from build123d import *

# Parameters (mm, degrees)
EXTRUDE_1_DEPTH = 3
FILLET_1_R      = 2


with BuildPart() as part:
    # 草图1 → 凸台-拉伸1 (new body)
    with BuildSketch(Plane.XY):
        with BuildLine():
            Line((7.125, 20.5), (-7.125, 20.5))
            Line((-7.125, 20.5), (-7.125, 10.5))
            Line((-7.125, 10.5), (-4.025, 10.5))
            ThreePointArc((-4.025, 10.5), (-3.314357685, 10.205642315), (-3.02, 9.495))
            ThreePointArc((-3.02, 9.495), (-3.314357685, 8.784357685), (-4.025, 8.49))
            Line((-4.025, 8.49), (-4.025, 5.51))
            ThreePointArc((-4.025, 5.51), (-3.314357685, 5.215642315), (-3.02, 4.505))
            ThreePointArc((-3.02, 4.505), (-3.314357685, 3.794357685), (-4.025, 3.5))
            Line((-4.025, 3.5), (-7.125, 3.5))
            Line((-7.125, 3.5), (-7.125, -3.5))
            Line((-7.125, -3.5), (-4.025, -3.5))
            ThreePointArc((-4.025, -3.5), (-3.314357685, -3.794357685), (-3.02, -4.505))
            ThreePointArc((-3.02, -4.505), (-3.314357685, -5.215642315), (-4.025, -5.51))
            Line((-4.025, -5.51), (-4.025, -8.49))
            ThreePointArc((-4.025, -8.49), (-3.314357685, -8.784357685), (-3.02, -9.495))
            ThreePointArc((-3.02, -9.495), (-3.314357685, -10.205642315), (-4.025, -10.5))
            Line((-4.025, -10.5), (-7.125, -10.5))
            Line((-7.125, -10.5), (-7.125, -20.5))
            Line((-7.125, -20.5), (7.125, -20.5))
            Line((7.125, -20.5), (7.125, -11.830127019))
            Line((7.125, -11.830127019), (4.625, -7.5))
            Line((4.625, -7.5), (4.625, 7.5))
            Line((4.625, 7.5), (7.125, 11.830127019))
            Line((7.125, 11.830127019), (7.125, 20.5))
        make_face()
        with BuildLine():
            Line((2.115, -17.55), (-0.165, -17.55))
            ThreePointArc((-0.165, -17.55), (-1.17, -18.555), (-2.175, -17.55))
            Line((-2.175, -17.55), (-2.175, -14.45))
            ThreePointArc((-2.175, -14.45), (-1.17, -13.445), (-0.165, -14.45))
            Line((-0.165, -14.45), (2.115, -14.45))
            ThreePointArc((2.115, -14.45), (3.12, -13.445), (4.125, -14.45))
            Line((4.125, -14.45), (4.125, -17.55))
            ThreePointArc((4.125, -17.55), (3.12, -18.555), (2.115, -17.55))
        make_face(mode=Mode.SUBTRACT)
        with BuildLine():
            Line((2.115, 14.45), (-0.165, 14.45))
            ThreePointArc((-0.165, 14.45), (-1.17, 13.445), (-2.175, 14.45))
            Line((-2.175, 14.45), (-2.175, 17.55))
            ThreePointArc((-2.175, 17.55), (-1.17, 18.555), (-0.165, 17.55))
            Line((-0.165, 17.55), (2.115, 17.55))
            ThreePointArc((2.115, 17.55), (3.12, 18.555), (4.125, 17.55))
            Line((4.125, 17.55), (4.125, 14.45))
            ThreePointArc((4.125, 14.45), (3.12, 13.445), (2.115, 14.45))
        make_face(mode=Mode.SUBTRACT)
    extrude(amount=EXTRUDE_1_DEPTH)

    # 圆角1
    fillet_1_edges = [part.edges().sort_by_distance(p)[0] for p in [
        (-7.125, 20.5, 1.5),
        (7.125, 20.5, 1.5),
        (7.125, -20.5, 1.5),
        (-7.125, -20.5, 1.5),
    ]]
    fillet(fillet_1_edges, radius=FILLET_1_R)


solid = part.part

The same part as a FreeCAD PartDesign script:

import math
import FreeCAD as App
import Part
import Sketcher

V = App.Vector
Q = App.Units.Quantity


def edges_at(feature, points):
    """Names of the edges that pass closest to the given points."""
    edges = feature.Shape.Edges
    near = lambda p: min(range(len(edges)), key=lambda i: edges[i].distToShape(Part.Vertex(*p))[0])
    return sorted({f"Edge{near(p) + 1}" for p in points})

doc = App.newDocument("Part")
body = doc.addObject("PartDesign::Body", "Body")

sketch1 = body.newObject("Sketcher::SketchObject", "Sketch")
sketch1.AttachmentSupport = (doc.getObject("XY_Plane"), [""])
sketch1.MapMode = "FlatFace"
sketch1.addGeometry(Part.LineSegment(V(7.1, 20.5, 0), V(-7.1, 20.5, 0)), False)
sketch1.addGeometry(Part.LineSegment(V(-7.1, 20.5, 0), V(-7.1, 10.5, 0)), False)
sketch1.addGeometry(Part.LineSegment(V(-7.1, 10.5, 0), V(-4, 10.5, 0)), False)
sketch1.addGeometry(Part.ArcOfCircle(Part.Circle(V(-4, 9.5, 0), V(0, 0, 1), 1), math.radians(0), math.radians(90)), False)
sketch1.addGeometry(Part.ArcOfCircle(Part.Circle(V(-4, 9.5, 0), V(0, 0, 1), 1), math.radians(-90), math.radians(0)), False)
sketch1.addGeometry(Part.LineSegment(V(-4, 8.5, 0), V(-4, 5.5, 0)), False)
sketch1.addGeometry(Part.ArcOfCircle(Part.Circle(V(-4, 4.5, 0), V(0, 0, 1), 1), math.radians(0), math.radians(90)), False)
sketch1.addGeometry(Part.ArcOfCircle(Part.Circle(V(-4, 4.5, 0), V(0, 0, 1), 1), math.radians(-90), math.radians(0)), False)
sketch1.addGeometry(Part.LineSegment(V(-4, 3.5, 0), V(-7.1, 3.5, 0)), False)
sketch1.addGeometry(Part.LineSegment(V(-7.1, 3.5, 0), V(-7.1, -3.5, 0)), False)
sketch1.addGeometry(Part.LineSegment(V(-7.1, -3.5, 0), V(-4, -3.5, 0)), False)
sketch1.addGeometry(Part.ArcOfCircle(Part.Circle(V(-4, -4.5, 0), V(0, 0, 1), 1), math.radians(0), math.radians(90)), False)
sketch1.addGeometry(Part.ArcOfCircle(Part.Circle(V(-4, -4.5, 0), V(0, 0, 1), 1), math.radians(-90), math.radians(0)), False)
sketch1.addGeometry(Part.LineSegment(V(-4, -5.5, 0), V(-4, -8.5, 0)), False)
sketch1.addGeometry(Part.ArcOfCircle(Part.Circle(V(-4, -9.5, 0), V(0, 0, 1), 1), math.radians(0), math.radians(90)), False)
sketch1.addGeometry(Part.ArcOfCircle(Part.Circle(V(-4, -9.5, 0), V(0, 0, 1), 1), math.radians(-90), math.radians(0)), False)
sketch1.addGeometry(Part.LineSegment(V(-4, -10.5, 0), V(-7.1, -10.5, 0)), False)
sketch1.addGeometry(Part.LineSegment(V(-7.1, -10.5, 0), V(-7.1, -20.5, 0)), False)
sketch1.addGeometry(Part.LineSegment(V(-7.1, -20.5, 0), V(7.1, -20.5, 0)), False)
sketch1.addGeometry(Part.LineSegment(V(7.1, -20.5, 0), V(7.1, -11.8, 0)), False)
sketch1.addGeometry(Part.LineSegment(V(7.1, -11.8, 0), V(4.6, -7.5, 0)), False)
sketch1.addGeometry(Part.LineSegment(V(4.6, -7.5, 0), V(4.6, 7.5, 0)), False)
sketch1.addGeometry(Part.LineSegment(V(4.6, 7.5, 0), V(7.1, 11.8, 0)), False)
sketch1.addGeometry(Part.LineSegment(V(7.1, 11.8, 0), V(7.1, 20.5, 0)), False)
sketch1.addGeometry(Part.ArcOfCircle(Part.Circle(V(3.1, -17.6, 0), V(0, 0, 1), 1), math.radians(180), math.radians(360)), False)
sketch1.addGeometry(Part.LineSegment(V(2.1, -17.6, 0), V(-0.2, -17.6, 0)), False)
sketch1.addGeometry(Part.ArcOfCircle(Part.Circle(V(-1.2, -17.6, 0), V(0, 0, 1), 1), math.radians(180), math.radians(360)), False)
sketch1.addGeometry(Part.LineSegment(V(-2.2, -17.6, 0), V(-2.2, -14.4, 0)), False)
sketch1.addGeometry(Part.ArcOfCircle(Part.Circle(V(-1.2, -14.4, 0), V(0, 0, 1), 1), math.radians(0), math.radians(180)), False)
sketch1.addGeometry(Part.LineSegment(V(-0.2, -14.4, 0), V(2.1, -14.4, 0)), False)
sketch1.addGeometry(Part.ArcOfCircle(Part.Circle(V(3.1, -14.4, 0), V(0, 0, 1), 1), math.radians(0), math.radians(180)), False)
sketch1.addGeometry(Part.LineSegment(V(4.1, -14.4, 0), V(4.1, -17.6, 0)), False)
sketch1.addGeometry(Part.ArcOfCircle(Part.Circle(V(3.1, 14.4, 0), V(0, 0, 1), 1), math.radians(180), math.radians(360)), False)
sketch1.addGeometry(Part.LineSegment(V(2.1, 14.4, 0), V(-0.2, 14.4, 0)), False)
sketch1.addGeometry(Part.ArcOfCircle(Part.Circle(V(-1.2, 14.4, 0), V(0, 0, 1), 1), math.radians(180), math.radians(360)), False)
sketch1.addGeometry(Part.LineSegment(V(-2.2, 14.4, 0), V(-2.2, 17.6, 0)), False)
sketch1.addGeometry(Part.ArcOfCircle(Part.Circle(V(-1.2, 17.6, 0), V(0, 0, 1), 1), math.radians(0), math.radians(180)), False)
sketch1.addGeometry(Part.LineSegment(V(-0.2, 17.6, 0), V(2.1, 17.6, 0)), False)
sketch1.addGeometry(Part.ArcOfCircle(Part.Circle(V(3.1, 17.6, 0), V(0, 0, 1), 1), math.radians(0), math.radians(180)), False)
sketch1.addGeometry(Part.LineSegment(V(4.1, 17.6, 0), V(4.1, 14.4, 0)), False)
sketch1.addConstraint(Sketcher.Constraint("Coincident", 0, 2, 1, 1))
sketch1.addConstraint(Sketcher.Constraint("Coincident", 1, 2, 2, 1))
sketch1.addConstraint(Sketcher.Constraint("Tangent", 2, 2, 3, 2))
sketch1.addConstraint(Sketcher.Constraint("Tangent", 3, 1, 4, 2))
sketch1.addConstraint(Sketcher.Constraint("Coincident", 4, 1, 5, 1))
sketch1.addConstraint(Sketcher.Constraint("Coincident", 5, 2, 6, 2))
sketch1.addConstraint(Sketcher.Constraint("Tangent", 6, 1, 7, 2))
sketch1.addConstraint(Sketcher.Constraint("Tangent", 7, 1, 8, 1))
sketch1.addConstraint(Sketcher.Constraint("Coincident", 8, 2, 9, 1))
sketch1.addConstraint(Sketcher.Constraint("Coincident", 9, 2, 10, 1))
sketch1.addConstraint(Sketcher.Constraint("Tangent", 10, 2, 11, 2))
sketch1.addConstraint(Sketcher.Constraint("Tangent", 11, 1, 12, 2))
sketch1.addConstraint(Sketcher.Constraint("Coincident", 12, 1, 13, 1))
sketch1.addConstraint(Sketcher.Constraint("Coincident", 13, 2, 14, 2))
sketch1.addConstraint(Sketcher.Constraint("Tangent", 14, 1, 15, 2))
sketch1.addConstraint(Sketcher.Constraint("Tangent", 15, 1, 16, 1))
sketch1.addConstraint(Sketcher.Constraint("Coincident", 16, 2, 17, 1))
sketch1.addConstraint(Sketcher.Constraint("Coincident", 17, 2, 18, 1))
sketch1.addConstraint(Sketcher.Constraint("Coincident", 18, 2, 19, 1))
sketch1.addConstraint(Sketcher.Constraint("Coincident", 19, 2, 20, 1))
sketch1.addConstraint(Sketcher.Constraint("Coincident", 20, 2, 21, 1))
sketch1.addConstraint(Sketcher.Constraint("Coincident", 21, 2, 22, 1))
sketch1.addConstraint(Sketcher.Constraint("Coincident", 22, 2, 23, 1))
sketch1.addConstraint(Sketcher.Constraint("Coincident", 23, 2, 0, 1))
sketch1.addConstraint(Sketcher.Constraint("Coincident", 24, 1, 25, 1))
sketch1.addConstraint(Sketcher.Constraint("Coincident", 25, 2, 26, 2))
sketch1.addConstraint(Sketcher.Constraint("Tangent", 26, 1, 27, 1))
sketch1.addConstraint(Sketcher.Constraint("Tangent", 27, 2, 28, 2))
sketch1.addConstraint(Sketcher.Constraint("Coincident", 28, 1, 29, 1))
sketch1.addConstraint(Sketcher.Constraint("Coincident", 29, 2, 30, 2))
sketch1.addConstraint(Sketcher.Constraint("Tangent", 30, 1, 31, 1))
sketch1.addConstraint(Sketcher.Constraint("Tangent", 31, 2, 24, 2))
sketch1.addConstraint(Sketcher.Constraint("Coincident", 32, 1, 33, 1))
sketch1.addConstraint(Sketcher.Constraint("Coincident", 33, 2, 34, 2))
sketch1.addConstraint(Sketcher.Constraint("Tangent", 34, 1, 35, 1))
sketch1.addConstraint(Sketcher.Constraint("Tangent", 35, 2, 36, 2))
sketch1.addConstraint(Sketcher.Constraint("Coincident", 36, 1, 37, 1))
sketch1.addConstraint(Sketcher.Constraint("Coincident", 37, 2, 38, 2))
sketch1.addConstraint(Sketcher.Constraint("Tangent", 38, 1, 39, 1))
sketch1.addConstraint(Sketcher.Constraint("Tangent", 39, 2, 32, 2))
sketch1.addConstraint(Sketcher.Constraint("Horizontal", 0))
sketch1.addConstraint(Sketcher.Constraint("Vertical", 1))
sketch1.addConstraint(Sketcher.Constraint("Horizontal", 2))
sketch1.addConstraint(Sketcher.Constraint("Vertical", 5))
sketch1.addConstraint(Sketcher.Constraint("Horizontal", 8))
sketch1.addConstraint(Sketcher.Constraint("Vertical", 9))
sketch1.addConstraint(Sketcher.Constraint("Horizontal", 10))
sketch1.addConstraint(Sketcher.Constraint("Vertical", 13))
sketch1.addConstraint(Sketcher.Constraint("Horizontal", 16))
sketch1.addConstraint(Sketcher.Constraint("Vertical", 17))
sketch1.addConstraint(Sketcher.Constraint("Horizontal", 18))
sketch1.addConstraint(Sketcher.Constraint("Vertical", 19))
sketch1.addConstraint(Sketcher.Constraint("Vertical", 21))
sketch1.addConstraint(Sketcher.Constraint("Vertical", 23))
sketch1.addConstraint(Sketcher.Constraint("Horizontal", 25))
sketch1.addConstraint(Sketcher.Constraint("Vertical", 27))
sketch1.addConstraint(Sketcher.Constraint("Horizontal", 29))
sketch1.addConstraint(Sketcher.Constraint("Vertical", 31))
sketch1.addConstraint(Sketcher.Constraint("Horizontal", 33))
sketch1.addConstraint(Sketcher.Constraint("Vertical", 35))
sketch1.addConstraint(Sketcher.Constraint("Horizontal", 37))
sketch1.addConstraint(Sketcher.Constraint("Vertical", 39))
sketch1.addConstraint(Sketcher.Constraint("Equal", 3, 4))
sketch1.addConstraint(Sketcher.Constraint("Equal", 4, 6))
sketch1.addConstraint(Sketcher.Constraint("Equal", 6, 7))
sketch1.addConstraint(Sketcher.Constraint("Equal", 7, 11))
sketch1.addConstraint(Sketcher.Constraint("Equal", 11, 12))
sketch1.addConstraint(Sketcher.Constraint("Equal", 12, 14))
sketch1.addConstraint(Sketcher.Constraint("Equal", 14, 15))
sketch1.addConstraint(Sketcher.Constraint("Equal", 15, 24))
sketch1.addConstraint(Sketcher.Constraint("Equal", 24, 26))
sketch1.addConstraint(Sketcher.Constraint("Equal", 26, 28))
sketch1.addConstraint(Sketcher.Constraint("Equal", 28, 30))
sketch1.addConstraint(Sketcher.Constraint("Equal", 30, 32))
sketch1.addConstraint(Sketcher.Constraint("Equal", 32, 34))
sketch1.addConstraint(Sketcher.Constraint("Equal", 34, 36))
sketch1.addConstraint(Sketcher.Constraint("Equal", 36, 38))
sketch1.addConstraint(Sketcher.Constraint("Symmetric", 0, 2, 18, 2, -1, 1))
sketch1.addConstraint(Sketcher.Constraint("Symmetric", 6, 3, 11, 3, -1))
sketch1.addConstraint(Sketcher.Constraint("Symmetric", 3, 3, 14, 3, -1))
sketch1.addConstraint(Sketcher.Constraint("Symmetric", 30, 3, 32, 3, -1))
sketch1.addConstraint(Sketcher.Constraint("Symmetric", 28, 3, 34, 3, -1))
sketch1.addConstraint(Sketcher.Constraint("Symmetric", 19, 2, 22, 2, -1))
sketch1.addConstraint(Sketcher.Constraint("Horizontal", 24, 3, 26, 3))
sketch1.addConstraint(Sketcher.Constraint("Horizontal", 28, 3, 30, 3))
sketch1.addConstraint(Sketcher.Constraint("Horizontal", 36, 3, 38, 3))
sketch1.addConstraint(Sketcher.Constraint("Horizontal", 4, 3, 3, 1))
sketch1.addConstraint(Sketcher.Constraint("Horizontal", 7, 3, 6, 1))
sketch1.addConstraint(Sketcher.Constraint("Horizontal", 12, 3, 11, 1))
sketch1.addConstraint(Sketcher.Constraint("Horizontal", 15, 3, 14, 1))
sketch1.addConstraint(Sketcher.Constraint("Horizontal", 26, 3, 24, 1))
sketch1.addConstraint(Sketcher.Constraint("Horizontal", 27, 2, 28, 1))
sketch1.addConstraint(Sketcher.Constraint("Horizontal", 34, 3, 32, 1))
sketch1.addConstraint(Sketcher.Constraint("Horizontal", 35, 2, 36, 1))
sketch1.addConstraint(Sketcher.Constraint("Vertical", 4, 3, 6, 3))
sketch1.addConstraint(Sketcher.Constraint("Vertical", 2, 2, 4, 1))
sketch1.addConstraint(Sketcher.Constraint("Vertical", 1, 2, 8, 2))
sketch1.addConstraint(Sketcher.Constraint("Vertical", 10, 2, 12, 1))
sketch1.addConstraint(Sketcher.Constraint("Vertical", 9, 2, 16, 2))
sketch1.addConstraint(Sketcher.Constraint("Equal", 16, 27))
sketch1.addConstraint(Sketcher.Constraint("Equal", 31, 35))
sketch1.addConstraint(Sketcher.Constraint("Equal", 20, 22))
sketch1.addConstraint(Sketcher.Constraint("DistanceY", 1, 2, 1, 1, Q("10 mm")))
sketch1.addConstraint(Sketcher.Constraint("DistanceY", 9, 2, 9, 1, Q("7 mm")))
sketch1.addConstraint(Sketcher.Constraint("DistanceY", 21, 1, 21, 2, Q("15 mm")))
sketch1.addConstraint(Sketcher.Constraint("Angle", 20, Q("120 deg")))
sketch1.addConstraint(Sketcher.Constraint("Distance", 20, Q("5 mm")))
sketch1.addConstraint(Sketcher.Constraint("DistanceX", 2, 1, 2, 2, Q("3.1 mm")))
sketch1.addConstraint(Sketcher.Constraint("Radius", 3, Q("1.005 mm")))
sketch1.addConstraint(Sketcher.Constraint("DistanceY", 11, 3, 3, 3, Q("14 mm")))
sketch1.addConstraint(Sketcher.Constraint("DistanceX", 30, 1, 19, 2, Q("3 mm")))
sketch1.addConstraint(Sketcher.Constraint("DistanceX", 0, 2, 0, 1, Q("14.25 mm")))
sketch1.addConstraint(Sketcher.Constraint("DistanceX", 25, 2, 25, 1, Q("2.28 mm")))
sketch1.addConstraint(Sketcher.Constraint("DistanceY", 24, 3, -1, 1, Q("17.55 mm")))
pad1 = body.newObject("PartDesign::Pad", "Pad")
pad1.Profile = sketch1
pad1.Length = 3
doc.recompute()

fillet = body.newObject("PartDesign::Fillet", "Fillet")
fillet.Base = (pad1, edges_at(pad1, [
    (-7.125, 20.5, 1.5),
    (7.125, 20.5, 1.5),
    (7.125, -20.5, 1.5),
    (-7.125, -20.5, 1.5),
]))
fillet.Radius = 2

doc.recompute()
